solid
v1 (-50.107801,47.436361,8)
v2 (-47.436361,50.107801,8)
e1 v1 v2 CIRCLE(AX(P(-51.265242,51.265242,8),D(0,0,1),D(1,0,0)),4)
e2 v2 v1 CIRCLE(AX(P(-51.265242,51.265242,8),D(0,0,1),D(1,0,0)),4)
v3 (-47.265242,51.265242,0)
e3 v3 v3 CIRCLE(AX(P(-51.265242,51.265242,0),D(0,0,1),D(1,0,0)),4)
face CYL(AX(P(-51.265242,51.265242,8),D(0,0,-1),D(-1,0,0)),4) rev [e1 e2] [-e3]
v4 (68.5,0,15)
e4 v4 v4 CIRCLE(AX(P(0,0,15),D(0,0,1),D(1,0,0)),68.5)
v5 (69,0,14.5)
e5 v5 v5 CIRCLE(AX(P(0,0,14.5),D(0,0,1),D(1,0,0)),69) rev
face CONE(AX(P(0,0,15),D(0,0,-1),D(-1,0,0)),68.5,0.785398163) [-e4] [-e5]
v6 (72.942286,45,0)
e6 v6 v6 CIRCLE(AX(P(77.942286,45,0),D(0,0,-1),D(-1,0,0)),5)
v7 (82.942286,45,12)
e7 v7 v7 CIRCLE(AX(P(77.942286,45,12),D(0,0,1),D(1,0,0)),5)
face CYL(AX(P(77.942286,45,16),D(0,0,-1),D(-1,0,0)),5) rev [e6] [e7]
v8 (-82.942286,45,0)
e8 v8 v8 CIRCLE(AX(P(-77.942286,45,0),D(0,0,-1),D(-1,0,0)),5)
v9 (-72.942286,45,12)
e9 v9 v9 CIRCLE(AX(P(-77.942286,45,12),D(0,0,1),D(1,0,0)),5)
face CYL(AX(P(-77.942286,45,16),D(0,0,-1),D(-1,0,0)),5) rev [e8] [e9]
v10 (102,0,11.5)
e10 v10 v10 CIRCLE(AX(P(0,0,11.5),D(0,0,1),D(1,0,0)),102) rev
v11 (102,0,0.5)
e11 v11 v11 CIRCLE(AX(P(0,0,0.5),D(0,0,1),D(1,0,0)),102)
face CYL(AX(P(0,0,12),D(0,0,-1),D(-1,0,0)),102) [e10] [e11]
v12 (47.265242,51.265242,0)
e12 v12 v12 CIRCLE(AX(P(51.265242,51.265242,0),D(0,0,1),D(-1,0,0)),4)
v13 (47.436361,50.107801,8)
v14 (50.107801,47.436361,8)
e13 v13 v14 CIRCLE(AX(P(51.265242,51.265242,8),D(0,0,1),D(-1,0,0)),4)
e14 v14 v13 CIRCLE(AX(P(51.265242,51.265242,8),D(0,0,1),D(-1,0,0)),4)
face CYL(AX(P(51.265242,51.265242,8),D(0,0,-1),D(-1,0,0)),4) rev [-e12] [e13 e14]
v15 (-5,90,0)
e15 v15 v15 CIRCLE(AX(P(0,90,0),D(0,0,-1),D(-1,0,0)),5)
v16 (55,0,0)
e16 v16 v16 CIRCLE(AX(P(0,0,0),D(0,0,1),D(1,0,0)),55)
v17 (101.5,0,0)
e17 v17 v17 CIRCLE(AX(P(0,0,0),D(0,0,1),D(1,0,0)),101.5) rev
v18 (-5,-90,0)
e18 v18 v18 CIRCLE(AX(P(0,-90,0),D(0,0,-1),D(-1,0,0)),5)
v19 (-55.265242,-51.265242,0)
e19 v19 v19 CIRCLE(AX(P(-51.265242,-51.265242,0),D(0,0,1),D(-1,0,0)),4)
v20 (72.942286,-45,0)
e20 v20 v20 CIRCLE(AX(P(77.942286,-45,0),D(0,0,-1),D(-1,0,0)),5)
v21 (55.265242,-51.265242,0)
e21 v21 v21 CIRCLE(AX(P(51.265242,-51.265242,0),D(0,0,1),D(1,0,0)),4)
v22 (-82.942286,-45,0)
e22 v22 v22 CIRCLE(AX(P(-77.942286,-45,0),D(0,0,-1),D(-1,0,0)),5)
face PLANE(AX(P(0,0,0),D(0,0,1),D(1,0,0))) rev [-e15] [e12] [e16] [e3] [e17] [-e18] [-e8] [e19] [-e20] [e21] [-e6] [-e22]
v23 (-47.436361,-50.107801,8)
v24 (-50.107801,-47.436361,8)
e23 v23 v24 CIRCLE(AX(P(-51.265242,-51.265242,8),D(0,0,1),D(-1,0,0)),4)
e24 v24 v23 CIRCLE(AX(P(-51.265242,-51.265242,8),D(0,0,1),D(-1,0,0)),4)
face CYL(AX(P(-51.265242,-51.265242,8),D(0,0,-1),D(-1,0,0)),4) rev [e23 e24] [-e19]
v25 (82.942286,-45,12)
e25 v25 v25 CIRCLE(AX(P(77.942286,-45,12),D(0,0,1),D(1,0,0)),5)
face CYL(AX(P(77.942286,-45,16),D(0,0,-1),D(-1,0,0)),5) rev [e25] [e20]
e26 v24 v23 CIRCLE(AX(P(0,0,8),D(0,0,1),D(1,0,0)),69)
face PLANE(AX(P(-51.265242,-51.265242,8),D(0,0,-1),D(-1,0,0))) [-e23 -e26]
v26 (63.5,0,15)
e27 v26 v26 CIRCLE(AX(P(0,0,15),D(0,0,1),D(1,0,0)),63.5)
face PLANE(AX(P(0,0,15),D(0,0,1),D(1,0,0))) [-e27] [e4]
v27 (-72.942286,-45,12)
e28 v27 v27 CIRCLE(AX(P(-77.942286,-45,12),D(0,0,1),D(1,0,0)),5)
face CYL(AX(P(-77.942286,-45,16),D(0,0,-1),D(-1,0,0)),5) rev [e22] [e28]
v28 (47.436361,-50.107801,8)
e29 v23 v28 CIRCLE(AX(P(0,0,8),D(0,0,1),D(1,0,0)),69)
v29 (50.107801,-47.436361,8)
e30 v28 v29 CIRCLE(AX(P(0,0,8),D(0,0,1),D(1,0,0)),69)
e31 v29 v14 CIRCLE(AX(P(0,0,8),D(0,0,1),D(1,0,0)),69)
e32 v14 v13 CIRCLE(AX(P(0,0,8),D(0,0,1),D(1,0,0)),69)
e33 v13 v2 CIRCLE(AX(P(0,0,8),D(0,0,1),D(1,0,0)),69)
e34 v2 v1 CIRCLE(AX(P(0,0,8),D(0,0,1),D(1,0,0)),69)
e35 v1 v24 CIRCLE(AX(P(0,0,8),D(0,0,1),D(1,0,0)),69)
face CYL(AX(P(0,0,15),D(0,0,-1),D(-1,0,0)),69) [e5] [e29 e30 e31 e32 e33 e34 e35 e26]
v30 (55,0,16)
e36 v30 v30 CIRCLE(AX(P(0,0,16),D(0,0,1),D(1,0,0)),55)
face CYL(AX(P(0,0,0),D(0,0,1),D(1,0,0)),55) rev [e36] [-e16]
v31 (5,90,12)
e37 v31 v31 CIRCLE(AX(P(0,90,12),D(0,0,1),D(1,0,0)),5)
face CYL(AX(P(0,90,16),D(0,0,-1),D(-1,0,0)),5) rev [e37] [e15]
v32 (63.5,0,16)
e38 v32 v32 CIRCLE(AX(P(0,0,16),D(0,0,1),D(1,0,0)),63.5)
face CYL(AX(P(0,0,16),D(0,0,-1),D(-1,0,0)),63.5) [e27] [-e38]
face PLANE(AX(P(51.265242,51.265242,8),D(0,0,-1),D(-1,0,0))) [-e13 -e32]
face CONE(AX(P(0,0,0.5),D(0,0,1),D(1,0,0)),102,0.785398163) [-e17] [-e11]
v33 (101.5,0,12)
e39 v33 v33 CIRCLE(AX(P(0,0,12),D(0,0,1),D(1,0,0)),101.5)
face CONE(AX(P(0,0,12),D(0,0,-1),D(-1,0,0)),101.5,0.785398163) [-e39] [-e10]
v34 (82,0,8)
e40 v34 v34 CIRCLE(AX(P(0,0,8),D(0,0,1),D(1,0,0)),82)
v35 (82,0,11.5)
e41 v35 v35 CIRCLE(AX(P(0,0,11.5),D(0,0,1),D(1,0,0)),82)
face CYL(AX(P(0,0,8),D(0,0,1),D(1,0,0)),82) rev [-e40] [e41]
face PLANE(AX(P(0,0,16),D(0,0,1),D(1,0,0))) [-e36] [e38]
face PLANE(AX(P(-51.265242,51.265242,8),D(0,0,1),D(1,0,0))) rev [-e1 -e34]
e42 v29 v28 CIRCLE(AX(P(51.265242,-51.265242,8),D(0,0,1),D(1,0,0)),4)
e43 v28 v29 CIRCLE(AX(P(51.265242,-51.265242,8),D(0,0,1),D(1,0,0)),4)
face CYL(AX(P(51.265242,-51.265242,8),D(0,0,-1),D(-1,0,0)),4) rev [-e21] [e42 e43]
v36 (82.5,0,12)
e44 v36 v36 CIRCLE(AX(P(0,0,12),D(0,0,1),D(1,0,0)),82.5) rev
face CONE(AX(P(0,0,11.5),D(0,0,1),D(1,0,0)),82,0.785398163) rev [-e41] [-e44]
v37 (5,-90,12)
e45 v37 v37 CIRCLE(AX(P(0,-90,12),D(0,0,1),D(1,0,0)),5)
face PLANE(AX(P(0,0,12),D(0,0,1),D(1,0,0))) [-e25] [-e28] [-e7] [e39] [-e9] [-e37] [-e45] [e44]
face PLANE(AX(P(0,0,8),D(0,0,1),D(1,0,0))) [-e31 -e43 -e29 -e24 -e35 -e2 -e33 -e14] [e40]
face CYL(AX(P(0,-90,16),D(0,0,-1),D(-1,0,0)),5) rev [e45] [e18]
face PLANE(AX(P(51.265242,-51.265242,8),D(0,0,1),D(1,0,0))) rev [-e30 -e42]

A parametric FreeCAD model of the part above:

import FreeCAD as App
import Part
import Sketcher
from FreeCAD import Vector
Q = App.Units.Quantity


def edges_at(feature, points):
    """Names of the edges that pass closest to the given points."""
    edges = feature.Shape.Edges
    near = lambda p: min(range(len(edges)), key=lambda i: edges[i].distToShape(Part.Vertex(*p))[0])
    return sorted({f"Edge{near(p) + 1}" for p in points})

doc = App.newDocument("Part")
body = doc.addObject("PartDesign::Body", "Body")

# Sketch on XY plane
sketch1 = body.newObject("Sketcher::SketchObject", "Sketch")
sketch1.AttachmentSupport = (doc.getObject("XY_Plane"), [""])
sketch1.MapMode = "FlatFace"
sketch1.addGeometry(Part.Circle(Vector(0, 0, 0), Vector(0, 0, 1), 102), False)
sketch1.addConstraint([
    Sketcher.Constraint("Coincident", 0, 3, -1, 1),
    Sketcher.Constraint("Diameter", 0, Q("204 mm")),
])
pad1 = body.newObject("PartDesign::Pad", "Pad")
pad1.Profile = sketch1
pad1.Length = 12

# Sketch on XY plane
sketch2 = body.newObject("Sketcher::SketchObject", "Sketch001")
sketch2.AttachmentSupport = (doc.getObject("XY_Plane"), [""])
sketch2.MapMode = "FlatFace"
sketch2.AttachmentOffset = App.Placement(Vector(0, 0, 12), App.Rotation())
sketch2.addGeometry(Part.Circle(Vector(0, 0, 0), Vector(0, 0, 1), 69), False)
sketch2.addConstraint([
    Sketcher.Constraint("Coincident", 0, 3, -1, 1),
    Sketcher.Constraint("Diameter", 0, Q("138 mm")),
])
pad2 = body.newObject("PartDesign::Pad", "Pad001")
pad2.Profile = sketch2
pad2.Length = 3

# Sketch on XY plane
sketch3 = body.newObject("Sketcher::SketchObject", "Sketch002")
sketch3.AttachmentSupport = (doc.getObject("XY_Plane"), [""])
sketch3.MapMode = "FlatFace"
sketch3.AttachmentOffset = App.Placement(Vector(0, 0, 15), App.Rotation())
sketch3.addGeometry(Part.Circle(Vector(0, 0, 0), Vector(0, 0, 1), 64), False)
sketch3.addConstraint([
    Sketcher.Constraint("Coincident", 0, 3, -1, 1),
    Sketcher.Constraint("Diameter", 0, Q("127 mm")),
])
pad3 = body.newObject("PartDesign::Pad", "Pad002")
pad3.Profile = sketch3
pad3.Length = 1

# Sketch on XY plane
sketch4 = body.newObject("Sketcher::SketchObject", "Sketch003")
sketch4.AttachmentSupport = (doc.getObject("XY_Plane"), [""])
sketch4.MapMode = "FlatFace"
sketch4.AttachmentOffset = App.Placement(Vector(0, 0, 16), App.Rotation())
sketch4.addGeometry(Part.Circle(Vector(0, 0, 0), Vector(0, 0, 1), 55), False)
sketch4.addConstraint([
    Sketcher.Constraint("Coincident", 0, 3, -1, 1),
    Sketcher.Constraint("Diameter", 0, Q("110 mm")),
])
pocket1 = body.newObject("PartDesign::Pocket", "Pocket")
pocket1.Profile = sketch4
pocket1.Type = "ThroughAll"

# Sketch on XY plane
sketch5 = body.newObject("Sketcher::SketchObject", "Sketch004")
sketch5.AttachmentSupport = (doc.getObject("XY_Plane"), [""])
sketch5.MapMode = "FlatFace"
sketch5.AttachmentOffset = App.Placement(Vector(0, 0, 8), App.Rotation())
sketch5.addGeometry([
    Part.Circle(Vector(0, 0, 0), Vector(0, 0, 1), 82),
    Part.Circle(Vector(0, 0, 0), Vector(0, 0, 1), 69),
], False)
sketch5.addConstraint([
    Sketcher.Constraint("Coincident", 0, 3, -1, 1),
    Sketcher.Constraint("Coincident", 1, 3, -1, 1),
    Sketcher.Constraint("Diameter", 0, Q("164 mm")),
    Sketcher.Constraint("Diameter", 1, Q("138 mm")),
])
pocket2 = body.newObject("PartDesign::Pocket", "Pocket001")
pocket2.Profile = sketch5
pocket2.Length = 4
pocket2.Reversed = True

# Sketch on XY plane
sketch6 = body.newObject("Sketcher::SketchObject", "Sketch005")
sketch6.AttachmentSupport = (doc.getObject("XY_Plane"), [""])
sketch6.MapMode = "FlatFace"
sketch6.addGeometry([
    Part.Circle(Vector(-51.3, 51.3, 0), Vector(0, 0, 1), 4),
    Part.Circle(Vector(51.3, 51.3, 0), Vector(0, 0, 1), 4),
    Part.Circle(Vector(51.3, -51.3, 0), Vector(0, 0, 1), 4),
    Part.Circle(Vector(-51.3, -51.3, 0), Vector(0, 0, 1), 4),
], False)
sketch6.addConstraint([
    Sketcher.Constraint("Equal", 0, 1),
    Sketcher.Constraint("Equal", 1, 2),
    Sketcher.Constraint("Equal", 2, 3),
    Sketcher.Constraint("Symmetric", 0, 3, 2, 3, -1, 1),
    Sketcher.Constraint("Symmetric", 1, 3, 3, 3, -1, 1),
    Sketcher.Constraint("Symmetric", 0, 3, 1, 3, -2),
    Sketcher.Constraint("Diameter", 0, Q("8 mm")),
    Sketcher.Constraint("DistanceX", 0, 3, -1, 1, Q("51.265242 mm")),
    Sketcher.Constraint("DistanceY", -1, 1, 0, 3, Q("51.265242 mm")),
])
pocket3 = body.newObject("PartDesign::Pocket", "Pocket002")
pocket3.Profile = sketch6
pocket3.Length = 8
pocket3.Reversed = True

# Sketch on XY plane
sketch7 = body.newObject("Sketcher::SketchObject", "Sketch006")
sketch7.AttachmentSupport = (doc.getObject("XY_Plane"), [""])
sketch7.MapMode = "FlatFace"
sketch7.addGeometry([
    Part.Circle(Vector(78, 45, 0), Vector(0, 0, 1), 5),  # 0
    Part.Circle(Vector(0, 90, 0), Vector(0, 0, 1), 5),  # 1
    Part.Circle(Vector(-78, 45, 0), Vector(0, 0, 1), 5),  # 2
    Part.Circle(Vector(-78, -45, 0), Vector(0, 0, 1), 5),  # 3
    Part.Circle(Vector(0, -90, 0), Vector(0, 0, 1), 5),  # 4
    Part.Circle(Vector(78, -45, 0), Vector(0, 0, 1), 5),  # 5
], False)
sketch7.addConstraint([
    Sketcher.Constraint("Equal", 0, 1),
    Sketcher.Constraint("Equal", 1, 2),
    Sketcher.Constraint("Equal", 2, 3),
    Sketcher.Constraint("Equal", 3, 4),
    Sketcher.Constraint("Equal", 4, 5),
    Sketcher.Constraint("Symmetric", 0, 3, 3, 3, -1, 1),
    Sketcher.Constraint("Symmetric", 1, 3, 4, 3, -1, 1),
    Sketcher.Constraint("Symmetric", 2, 3, 5, 3, -1, 1),
    Sketcher.Constraint("Symmetric", 0, 3, 2, 3, -2),
    Sketcher.Constraint("PointOnObject", 1, 3, -2),
    Sketcher.Constraint("Diameter", 0, Q("10 mm")),
    Sketcher.Constraint("DistanceY", -1, 1, 0, 3, Q("45 mm")),
    Sketcher.Constraint("DistanceY", -1, 1, 1, 3, Q("90 mm")),
    Sketcher.Constraint("DistanceX", -1, 1, 0, 3, Q("77.942286 mm")),
])
pocket4 = body.newObject("PartDesign::Pocket", "Pocket003")
pocket4.Profile = sketch7
pocket4.Type = "ThroughAll"
pocket4.Reversed = True
doc.recompute()

chamfer = body.newObject("PartDesign::Chamfer", "Chamfer")
chamfer.Base = (pocket4, edges_at(pocket4, [
    (-82, 0, 12),
    (-102, 0, 0),
    (-102, 0, 12),
    (-69, 0, 15),
]))
chamfer.Size = 0.5

doc.recompute()
